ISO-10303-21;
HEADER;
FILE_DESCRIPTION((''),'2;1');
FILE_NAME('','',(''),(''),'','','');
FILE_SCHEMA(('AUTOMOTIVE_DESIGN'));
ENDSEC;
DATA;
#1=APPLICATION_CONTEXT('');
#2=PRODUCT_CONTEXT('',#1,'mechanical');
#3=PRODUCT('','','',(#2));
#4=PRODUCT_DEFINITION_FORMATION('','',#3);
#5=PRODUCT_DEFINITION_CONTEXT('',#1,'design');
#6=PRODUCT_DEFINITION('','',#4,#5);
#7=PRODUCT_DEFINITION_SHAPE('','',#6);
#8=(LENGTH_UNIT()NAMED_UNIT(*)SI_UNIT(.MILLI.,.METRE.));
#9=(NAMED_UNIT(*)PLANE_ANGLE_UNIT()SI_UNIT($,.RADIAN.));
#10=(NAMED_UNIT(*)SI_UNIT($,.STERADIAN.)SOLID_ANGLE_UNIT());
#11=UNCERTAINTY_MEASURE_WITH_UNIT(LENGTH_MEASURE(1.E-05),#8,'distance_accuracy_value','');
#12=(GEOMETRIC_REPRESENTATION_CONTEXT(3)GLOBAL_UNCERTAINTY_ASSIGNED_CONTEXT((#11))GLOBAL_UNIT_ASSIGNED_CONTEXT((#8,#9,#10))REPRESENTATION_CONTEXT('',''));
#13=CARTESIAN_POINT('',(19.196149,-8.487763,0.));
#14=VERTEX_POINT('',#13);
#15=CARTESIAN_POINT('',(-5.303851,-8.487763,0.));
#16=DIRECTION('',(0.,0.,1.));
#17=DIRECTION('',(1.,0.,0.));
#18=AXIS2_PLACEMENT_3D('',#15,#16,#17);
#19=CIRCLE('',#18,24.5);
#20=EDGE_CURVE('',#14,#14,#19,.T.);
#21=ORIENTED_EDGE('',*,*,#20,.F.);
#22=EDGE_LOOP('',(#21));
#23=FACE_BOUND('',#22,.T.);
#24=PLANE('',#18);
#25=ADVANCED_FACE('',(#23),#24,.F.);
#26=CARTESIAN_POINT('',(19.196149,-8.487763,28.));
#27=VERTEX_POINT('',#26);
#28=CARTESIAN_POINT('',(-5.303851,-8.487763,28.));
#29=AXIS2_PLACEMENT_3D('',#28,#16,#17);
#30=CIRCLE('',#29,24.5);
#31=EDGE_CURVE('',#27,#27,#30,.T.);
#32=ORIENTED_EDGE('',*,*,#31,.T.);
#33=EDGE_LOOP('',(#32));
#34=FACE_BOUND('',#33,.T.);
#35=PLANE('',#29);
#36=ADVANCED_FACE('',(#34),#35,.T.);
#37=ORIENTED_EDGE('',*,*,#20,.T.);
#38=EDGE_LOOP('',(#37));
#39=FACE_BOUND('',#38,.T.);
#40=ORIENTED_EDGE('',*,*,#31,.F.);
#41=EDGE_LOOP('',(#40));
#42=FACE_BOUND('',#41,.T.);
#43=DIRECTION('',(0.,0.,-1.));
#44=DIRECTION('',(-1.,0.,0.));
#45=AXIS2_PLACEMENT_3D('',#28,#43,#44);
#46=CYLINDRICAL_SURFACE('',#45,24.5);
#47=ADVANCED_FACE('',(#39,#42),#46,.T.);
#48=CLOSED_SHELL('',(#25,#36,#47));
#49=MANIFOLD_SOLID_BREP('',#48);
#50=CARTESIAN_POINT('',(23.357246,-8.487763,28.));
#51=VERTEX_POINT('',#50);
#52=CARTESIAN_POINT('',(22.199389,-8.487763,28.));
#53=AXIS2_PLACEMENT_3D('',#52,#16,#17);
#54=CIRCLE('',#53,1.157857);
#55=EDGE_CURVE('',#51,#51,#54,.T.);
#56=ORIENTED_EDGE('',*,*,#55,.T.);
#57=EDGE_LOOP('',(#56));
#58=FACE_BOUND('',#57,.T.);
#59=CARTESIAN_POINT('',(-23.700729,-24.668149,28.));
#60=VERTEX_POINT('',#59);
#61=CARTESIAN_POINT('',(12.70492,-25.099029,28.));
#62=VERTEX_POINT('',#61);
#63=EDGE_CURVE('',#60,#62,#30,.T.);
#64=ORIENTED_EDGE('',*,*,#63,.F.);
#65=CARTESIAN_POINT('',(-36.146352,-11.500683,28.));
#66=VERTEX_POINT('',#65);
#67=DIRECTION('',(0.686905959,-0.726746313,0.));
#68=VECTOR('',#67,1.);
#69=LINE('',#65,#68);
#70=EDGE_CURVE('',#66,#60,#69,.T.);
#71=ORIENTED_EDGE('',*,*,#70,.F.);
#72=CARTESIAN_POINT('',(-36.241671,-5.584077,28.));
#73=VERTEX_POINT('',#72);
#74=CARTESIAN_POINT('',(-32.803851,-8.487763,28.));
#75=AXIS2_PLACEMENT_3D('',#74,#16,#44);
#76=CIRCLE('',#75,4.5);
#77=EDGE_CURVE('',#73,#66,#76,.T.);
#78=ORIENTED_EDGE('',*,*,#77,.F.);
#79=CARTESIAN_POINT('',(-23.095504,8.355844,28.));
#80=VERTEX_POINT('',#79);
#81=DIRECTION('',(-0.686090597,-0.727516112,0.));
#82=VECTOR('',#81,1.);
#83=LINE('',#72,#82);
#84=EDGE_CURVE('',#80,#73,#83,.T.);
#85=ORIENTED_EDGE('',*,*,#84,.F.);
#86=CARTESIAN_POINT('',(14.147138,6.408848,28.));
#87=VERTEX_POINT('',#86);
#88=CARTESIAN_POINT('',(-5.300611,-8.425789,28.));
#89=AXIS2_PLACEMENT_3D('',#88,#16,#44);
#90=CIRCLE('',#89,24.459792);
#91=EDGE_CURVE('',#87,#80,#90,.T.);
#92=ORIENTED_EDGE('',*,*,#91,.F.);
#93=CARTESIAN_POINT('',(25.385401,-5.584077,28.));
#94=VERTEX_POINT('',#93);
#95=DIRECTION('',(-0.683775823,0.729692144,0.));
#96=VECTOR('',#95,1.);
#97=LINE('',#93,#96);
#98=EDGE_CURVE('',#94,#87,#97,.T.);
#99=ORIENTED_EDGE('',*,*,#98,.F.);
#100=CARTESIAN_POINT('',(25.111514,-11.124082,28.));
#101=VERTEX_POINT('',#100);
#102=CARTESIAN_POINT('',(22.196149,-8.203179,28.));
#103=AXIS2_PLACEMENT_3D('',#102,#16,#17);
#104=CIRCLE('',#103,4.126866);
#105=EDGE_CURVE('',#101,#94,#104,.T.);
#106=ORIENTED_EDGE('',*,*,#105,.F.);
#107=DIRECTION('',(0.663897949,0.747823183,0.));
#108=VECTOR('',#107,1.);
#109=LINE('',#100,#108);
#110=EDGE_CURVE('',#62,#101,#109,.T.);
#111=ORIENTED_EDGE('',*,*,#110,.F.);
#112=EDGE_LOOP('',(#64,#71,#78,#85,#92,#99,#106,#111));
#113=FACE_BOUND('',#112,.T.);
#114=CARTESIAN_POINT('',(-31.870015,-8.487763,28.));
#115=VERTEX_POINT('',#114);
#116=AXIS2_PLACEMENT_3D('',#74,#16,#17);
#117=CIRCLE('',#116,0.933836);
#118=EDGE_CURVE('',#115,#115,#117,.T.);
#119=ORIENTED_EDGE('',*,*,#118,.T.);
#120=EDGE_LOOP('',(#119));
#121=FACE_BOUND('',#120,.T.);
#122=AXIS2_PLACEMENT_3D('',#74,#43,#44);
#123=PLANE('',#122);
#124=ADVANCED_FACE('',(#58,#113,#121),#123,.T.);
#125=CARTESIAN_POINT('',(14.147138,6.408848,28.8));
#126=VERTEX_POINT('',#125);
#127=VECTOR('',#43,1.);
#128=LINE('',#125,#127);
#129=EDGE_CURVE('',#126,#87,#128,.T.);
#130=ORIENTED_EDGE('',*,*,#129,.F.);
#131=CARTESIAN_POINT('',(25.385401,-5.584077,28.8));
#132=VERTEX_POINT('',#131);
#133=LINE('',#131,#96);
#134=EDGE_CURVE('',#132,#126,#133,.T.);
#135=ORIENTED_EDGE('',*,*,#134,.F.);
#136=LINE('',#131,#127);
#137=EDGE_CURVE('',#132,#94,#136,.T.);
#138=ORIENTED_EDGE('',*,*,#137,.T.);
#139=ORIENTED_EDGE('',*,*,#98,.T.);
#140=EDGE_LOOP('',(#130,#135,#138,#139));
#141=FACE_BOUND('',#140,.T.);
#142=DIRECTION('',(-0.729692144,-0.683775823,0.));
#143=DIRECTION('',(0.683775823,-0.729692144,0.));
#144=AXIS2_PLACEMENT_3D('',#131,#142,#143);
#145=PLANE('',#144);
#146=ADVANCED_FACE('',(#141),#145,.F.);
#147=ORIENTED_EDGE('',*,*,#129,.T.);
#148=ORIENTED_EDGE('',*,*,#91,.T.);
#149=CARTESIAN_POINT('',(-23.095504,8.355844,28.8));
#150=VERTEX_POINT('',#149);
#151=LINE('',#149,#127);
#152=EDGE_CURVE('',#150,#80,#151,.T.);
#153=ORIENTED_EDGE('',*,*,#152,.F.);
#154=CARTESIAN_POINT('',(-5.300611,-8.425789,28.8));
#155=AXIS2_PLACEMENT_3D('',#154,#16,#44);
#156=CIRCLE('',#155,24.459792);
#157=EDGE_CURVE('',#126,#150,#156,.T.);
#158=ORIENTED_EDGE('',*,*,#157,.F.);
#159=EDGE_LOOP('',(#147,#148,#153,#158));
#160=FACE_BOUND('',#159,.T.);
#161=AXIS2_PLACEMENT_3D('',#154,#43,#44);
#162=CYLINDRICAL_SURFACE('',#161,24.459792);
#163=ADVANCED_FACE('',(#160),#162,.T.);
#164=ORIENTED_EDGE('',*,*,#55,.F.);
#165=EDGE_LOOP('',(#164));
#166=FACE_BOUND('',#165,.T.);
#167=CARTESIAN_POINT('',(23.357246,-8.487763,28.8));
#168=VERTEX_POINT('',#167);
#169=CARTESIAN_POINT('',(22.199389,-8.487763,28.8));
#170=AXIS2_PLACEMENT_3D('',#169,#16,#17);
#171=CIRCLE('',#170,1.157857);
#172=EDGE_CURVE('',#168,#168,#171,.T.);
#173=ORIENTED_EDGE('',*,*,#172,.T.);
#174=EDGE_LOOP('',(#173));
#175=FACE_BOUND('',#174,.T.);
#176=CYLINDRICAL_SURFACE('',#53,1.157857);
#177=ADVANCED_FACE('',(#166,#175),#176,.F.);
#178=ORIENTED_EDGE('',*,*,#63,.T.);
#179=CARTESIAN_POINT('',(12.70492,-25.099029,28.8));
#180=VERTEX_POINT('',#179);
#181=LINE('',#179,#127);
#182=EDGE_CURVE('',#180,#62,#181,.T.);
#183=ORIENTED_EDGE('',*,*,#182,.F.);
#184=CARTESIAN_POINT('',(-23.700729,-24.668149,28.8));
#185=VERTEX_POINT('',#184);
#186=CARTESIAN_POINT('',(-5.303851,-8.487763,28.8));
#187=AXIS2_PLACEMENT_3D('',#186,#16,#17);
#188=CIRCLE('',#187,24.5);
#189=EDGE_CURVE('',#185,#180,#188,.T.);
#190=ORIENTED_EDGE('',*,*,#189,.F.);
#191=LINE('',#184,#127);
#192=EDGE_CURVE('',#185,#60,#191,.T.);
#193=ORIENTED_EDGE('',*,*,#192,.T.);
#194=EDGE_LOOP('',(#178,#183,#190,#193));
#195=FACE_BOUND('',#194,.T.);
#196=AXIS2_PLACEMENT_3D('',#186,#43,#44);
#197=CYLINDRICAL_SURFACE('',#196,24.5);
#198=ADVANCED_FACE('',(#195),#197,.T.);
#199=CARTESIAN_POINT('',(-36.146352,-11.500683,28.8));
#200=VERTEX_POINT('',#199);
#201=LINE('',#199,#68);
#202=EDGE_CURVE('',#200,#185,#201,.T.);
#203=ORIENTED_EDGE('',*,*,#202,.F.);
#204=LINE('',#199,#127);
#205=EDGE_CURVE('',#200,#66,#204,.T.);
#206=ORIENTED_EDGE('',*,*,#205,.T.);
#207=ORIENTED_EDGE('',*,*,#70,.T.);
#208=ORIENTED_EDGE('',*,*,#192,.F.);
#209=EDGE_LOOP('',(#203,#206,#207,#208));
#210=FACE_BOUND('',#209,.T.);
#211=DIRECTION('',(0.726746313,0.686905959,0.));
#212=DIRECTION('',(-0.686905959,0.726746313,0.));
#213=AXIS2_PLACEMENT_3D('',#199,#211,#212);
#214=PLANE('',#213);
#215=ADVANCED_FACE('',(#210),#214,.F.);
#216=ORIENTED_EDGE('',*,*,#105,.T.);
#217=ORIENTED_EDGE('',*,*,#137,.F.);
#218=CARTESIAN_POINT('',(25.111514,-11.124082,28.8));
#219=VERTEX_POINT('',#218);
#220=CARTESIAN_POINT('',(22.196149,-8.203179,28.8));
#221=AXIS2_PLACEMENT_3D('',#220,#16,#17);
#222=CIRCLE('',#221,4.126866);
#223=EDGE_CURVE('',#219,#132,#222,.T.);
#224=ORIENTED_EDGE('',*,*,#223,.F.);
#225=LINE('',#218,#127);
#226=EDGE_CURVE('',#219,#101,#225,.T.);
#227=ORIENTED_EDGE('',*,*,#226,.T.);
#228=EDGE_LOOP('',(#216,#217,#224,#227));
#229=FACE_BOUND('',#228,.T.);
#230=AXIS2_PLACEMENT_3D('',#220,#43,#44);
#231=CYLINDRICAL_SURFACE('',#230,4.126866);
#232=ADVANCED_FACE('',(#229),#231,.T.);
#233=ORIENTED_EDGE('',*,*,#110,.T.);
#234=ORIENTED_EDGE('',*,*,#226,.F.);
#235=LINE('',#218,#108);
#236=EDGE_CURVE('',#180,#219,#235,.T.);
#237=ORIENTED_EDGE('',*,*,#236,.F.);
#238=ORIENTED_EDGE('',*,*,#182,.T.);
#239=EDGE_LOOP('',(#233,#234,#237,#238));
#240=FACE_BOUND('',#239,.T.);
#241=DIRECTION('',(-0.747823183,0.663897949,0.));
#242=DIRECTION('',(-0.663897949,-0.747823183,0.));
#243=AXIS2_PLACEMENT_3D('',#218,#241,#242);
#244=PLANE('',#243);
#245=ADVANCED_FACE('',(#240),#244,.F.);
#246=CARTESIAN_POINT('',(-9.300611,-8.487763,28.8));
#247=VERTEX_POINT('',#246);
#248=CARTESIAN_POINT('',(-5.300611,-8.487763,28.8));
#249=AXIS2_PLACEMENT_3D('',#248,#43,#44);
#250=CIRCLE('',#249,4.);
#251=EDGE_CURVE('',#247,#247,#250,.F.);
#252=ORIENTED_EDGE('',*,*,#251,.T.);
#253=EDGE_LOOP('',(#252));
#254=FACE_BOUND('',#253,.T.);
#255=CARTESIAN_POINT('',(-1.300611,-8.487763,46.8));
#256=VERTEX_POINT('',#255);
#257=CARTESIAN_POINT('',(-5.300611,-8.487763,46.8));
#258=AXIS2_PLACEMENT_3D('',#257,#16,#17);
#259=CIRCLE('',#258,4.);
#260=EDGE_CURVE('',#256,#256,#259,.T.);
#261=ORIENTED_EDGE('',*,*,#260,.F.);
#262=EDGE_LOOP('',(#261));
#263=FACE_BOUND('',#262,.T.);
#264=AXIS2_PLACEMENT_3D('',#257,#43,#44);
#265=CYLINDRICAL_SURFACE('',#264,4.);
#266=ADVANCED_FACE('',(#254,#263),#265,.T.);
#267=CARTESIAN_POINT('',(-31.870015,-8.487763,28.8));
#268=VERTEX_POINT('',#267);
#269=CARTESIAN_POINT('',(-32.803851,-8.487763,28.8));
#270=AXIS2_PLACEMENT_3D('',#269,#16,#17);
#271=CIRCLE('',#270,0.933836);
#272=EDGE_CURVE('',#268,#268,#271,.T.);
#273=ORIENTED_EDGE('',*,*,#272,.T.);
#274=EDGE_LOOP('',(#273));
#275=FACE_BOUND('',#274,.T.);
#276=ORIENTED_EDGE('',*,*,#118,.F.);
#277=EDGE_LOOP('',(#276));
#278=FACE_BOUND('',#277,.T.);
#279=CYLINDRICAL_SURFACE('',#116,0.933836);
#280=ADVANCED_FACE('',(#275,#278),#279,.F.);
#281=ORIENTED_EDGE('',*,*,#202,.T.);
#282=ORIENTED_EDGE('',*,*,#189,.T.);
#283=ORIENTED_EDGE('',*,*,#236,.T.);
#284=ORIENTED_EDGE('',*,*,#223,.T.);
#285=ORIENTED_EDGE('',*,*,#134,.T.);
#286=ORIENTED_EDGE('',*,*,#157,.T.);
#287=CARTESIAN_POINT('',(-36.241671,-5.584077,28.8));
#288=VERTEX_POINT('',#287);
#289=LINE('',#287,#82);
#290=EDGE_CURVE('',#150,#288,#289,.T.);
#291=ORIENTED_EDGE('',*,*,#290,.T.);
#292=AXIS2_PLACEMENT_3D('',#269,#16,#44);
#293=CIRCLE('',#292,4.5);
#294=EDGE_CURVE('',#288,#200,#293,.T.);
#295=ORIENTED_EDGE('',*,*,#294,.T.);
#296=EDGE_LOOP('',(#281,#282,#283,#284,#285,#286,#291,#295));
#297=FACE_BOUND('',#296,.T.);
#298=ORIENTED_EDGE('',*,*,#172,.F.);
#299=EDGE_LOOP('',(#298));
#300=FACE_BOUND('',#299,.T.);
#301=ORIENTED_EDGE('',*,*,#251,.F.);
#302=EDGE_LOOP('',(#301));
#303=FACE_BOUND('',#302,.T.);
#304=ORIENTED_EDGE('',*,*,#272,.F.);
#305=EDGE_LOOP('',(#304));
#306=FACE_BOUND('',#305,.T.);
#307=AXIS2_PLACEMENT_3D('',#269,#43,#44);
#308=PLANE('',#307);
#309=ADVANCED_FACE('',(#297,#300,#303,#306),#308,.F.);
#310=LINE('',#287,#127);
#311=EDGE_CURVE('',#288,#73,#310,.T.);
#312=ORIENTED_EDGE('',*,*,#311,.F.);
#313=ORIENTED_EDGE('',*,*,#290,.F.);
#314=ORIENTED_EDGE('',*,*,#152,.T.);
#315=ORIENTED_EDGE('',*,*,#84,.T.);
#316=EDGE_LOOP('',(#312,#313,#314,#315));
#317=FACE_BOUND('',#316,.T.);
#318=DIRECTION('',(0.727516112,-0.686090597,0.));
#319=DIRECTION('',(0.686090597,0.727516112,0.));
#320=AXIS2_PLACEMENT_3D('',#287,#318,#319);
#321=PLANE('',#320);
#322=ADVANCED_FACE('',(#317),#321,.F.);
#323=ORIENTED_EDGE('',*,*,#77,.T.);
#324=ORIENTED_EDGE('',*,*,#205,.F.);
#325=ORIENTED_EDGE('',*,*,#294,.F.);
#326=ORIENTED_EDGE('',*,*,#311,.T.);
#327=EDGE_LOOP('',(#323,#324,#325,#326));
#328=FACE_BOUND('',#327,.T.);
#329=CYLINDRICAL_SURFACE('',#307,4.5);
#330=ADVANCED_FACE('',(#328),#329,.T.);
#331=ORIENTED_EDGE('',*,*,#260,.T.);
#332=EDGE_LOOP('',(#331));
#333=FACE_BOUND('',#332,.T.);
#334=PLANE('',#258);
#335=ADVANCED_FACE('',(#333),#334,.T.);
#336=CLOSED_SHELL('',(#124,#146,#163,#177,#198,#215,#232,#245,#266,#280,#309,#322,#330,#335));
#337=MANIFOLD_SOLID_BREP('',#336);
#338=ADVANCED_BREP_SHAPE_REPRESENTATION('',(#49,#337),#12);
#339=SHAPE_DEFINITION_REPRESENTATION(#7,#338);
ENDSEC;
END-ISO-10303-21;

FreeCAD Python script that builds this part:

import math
import FreeCAD as App
import Part
import Sketcher
from FreeCAD import Vector

doc = App.newDocument("Part")
body = doc.addObject("PartDesign::Body", "Body")

# Sketch on XY plane
sketch1 = body.newObject("Sketcher::SketchObject", "Sketch")
sketch1.AttachmentSupport = (doc.getObject("XY_Plane"), [""])
sketch1.MapMode = "FlatFace"
sketch1.addGeometry(Part.Circle(Vector(-5, -8, 0), Vector(0, 0, 1), 24), False)
sketch1.addConstraint([
    Sketcher.Constraint("Diameter", 0, 49.0),
    Sketcher.Constraint("DistanceX", 0, 3, -1, 1, 5.303851),
    Sketcher.Constraint("DistanceY", 0, 3, -1, 1, 8.487763),
])
pad1 = body.newObject("PartDesign::Pad", "Pad")
pad1.Profile = sketch1
pad1.Length = 28
body2 = doc.addObject("PartDesign::Body", "Body001")

# Sketch on XY plane
sketch2 = body2.newObject("Sketcher::SketchObject", "Sketch001")
sketch2.AttachmentSupport = (doc.getObject("XY_Plane001"), [""])
sketch2.MapMode = "FlatFace"
sketch2.AttachmentOffset = App.Placement(Vector(0, 0, 28), App.Rotation())
sketch2.addGeometry([
    Part.LineSegment(Vector(-23.1, 8.4, 0), Vector(-36.2, -5.6, 0)),  # 0
    Part.ArcOfCircle(Part.Circle(Vector(-32.8, -8.5, 0), Vector(0, 0, 1), 4.5), math.radians(140), math.radians(222)),  # 1
    Part.LineSegment(Vector(-36.1, -11.5, 0), Vector(-23.7, -24.7, 0)),  # 2
    Part.ArcOfCircle(Part.Circle(Vector(-5.3, -8.5, 0), Vector(0, 0, 1), 24.5), math.radians(-139), math.radians(-43)),  # 3
    Part.LineSegment(Vector(12.7, -25.1, 0), Vector(25.1, -11.1, 0)),  # 4
    Part.ArcOfCircle(Part.Circle(Vector(22.2, -8.2, 0), Vector(0, 0, 1), 4.1), math.radians(-45), math.radians(39)),  # 5
    Part.LineSegment(Vector(25.4, -5.6, 0), Vector(14.1, 6.4, 0)),  # 6
    Part.ArcOfCircle(Part.Circle(Vector(-5.3, -8.4, 0), Vector(0, 0, 1), 24.5), math.radians(37), math.radians(137)),  # 7
], False)
sketch2.addConstraint([
    Sketcher.Constraint("Coincident", 0, 2, 1, 1),
    Sketcher.Constraint("Coincident", 1, 2, 2, 1),
    Sketcher.Constraint("Coincident", 2, 2, 3, 1),
    Sketcher.Constraint("Coincident", 3, 2, 4, 1),
    Sketcher.Constraint("Coincident", 4, 2, 5, 1),
    Sketcher.Constraint("Coincident", 5, 2, 6, 1),
    Sketcher.Constraint("Coincident", 6, 2, 7, 1),
    Sketcher.Constraint("Tangent", 7, 2, 0, 1),
    Sketcher.Constraint("Horizontal", 1, 3, 3, 3),
    Sketcher.Constraint("Horizontal", 0, 2, 5, 2),
    Sketcher.Constraint("Radius", 1, 4.5),
    Sketcher.Constraint("Radius", 3, 24.5),
    Sketcher.Constraint("DistanceX", 1, 3, 5, 3, 55.0),
    Sketcher.Constraint("DistanceX", 1, 3, 3, 3, 27.5),
    Sketcher.Constraint("Radius", 7, 24.459792),
    Sketcher.Constraint("Radius", 5, 4.126866),
    Sketcher.Constraint("Distance", 4, 18.687501),
    Sketcher.Constraint("DistanceX", -1, 1, 5, 2, 25.385401),
    Sketcher.Constraint("DistanceX", 1, 2, 1, 3, 3.342501),
    Sketcher.Constraint("Distance", 0, 19.160979),
    Sketcher.Constraint("Distance", 2, 18.11838),
    Sketcher.Constraint("DistanceX", 1, 3, -1, 1, 32.803851),
    Sketcher.Constraint("DistanceY", 5, 3, -1, 1, 8.203179),
    Sketcher.Constraint("DistanceX", 7, 3, -1, 1, 5.300611),
    Sketcher.Constraint("DistanceY", 7, 3, -1, 1, 8.425789),
    Sketcher.Constraint("DistanceX", -1, 1, 3, 2, 12.70492),
    Sketcher.Constraint("DistanceY", -1, 1, 6, 2, 6.408848),
])
pad2 = body2.newObject("PartDesign::Pad", "Pad001")
pad2.Profile = sketch2
pad2.Length = 0.8

# Sketch on XY plane
sketch3 = body2.newObject("Sketcher::SketchObject", "Sketch002")
sketch3.AttachmentSupport = (doc.getObject("XY_Plane001"), [""])
sketch3.MapMode = "FlatFace"
sketch3.AttachmentOffset = App.Placement(Vector(0, 0, 28.8), App.Rotation())
sketch3.addGeometry([
    Part.Circle(Vector(-32.8, -8.5, 0), Vector(0, 0, 1), 0.9),
    Part.Circle(Vector(22.2, -8.5, 0), Vector(0, 0, 1), 1.2),
], False)
sketch3.addConstraint([
    Sketcher.Constraint("Horizontal", 0, 3, 1, 3),
    Sketcher.Constraint("Diameter", 0, 1.867673),
    Sketcher.Constraint("Diameter", 1, 2.315714),
    Sketcher.Constraint("DistanceX", 0, 3, -1, 1, 32.803851),
    Sketcher.Constraint("DistanceX", -1, 1, 1, 3, 22.199389),
    Sketcher.Constraint("DistanceY", 0, 3, -1, 1, 8.487763),
])
pocket1 = body2.newObject("PartDesign::Pocket", "Pocket")
pocket1.Profile = sketch3
pocket1.Length = 0.8

# Sketch on XY plane
sketch4 = body2.newObject("Sketcher::SketchObject", "Sketch003")
sketch4.AttachmentSupport = (doc.getObject("XY_Plane001"), [""])
sketch4.MapMode = "FlatFace"
sketch4.AttachmentOffset = App.Placement(Vector(0, 0, 28.8), App.Rotation())
sketch4.addGeometry(Part.Circle(Vector(-5.3, -8.5, 0), Vector(0, 0, 1), 4), False)
sketch4.addConstraint([
    Sketcher.Constraint("Diameter", 0, 8.0),
    Sketcher.Constraint("DistanceX", 0, 3, -1, 1, 5.300611),
    Sketcher.Constraint("DistanceY", 0, 3, -1, 1, 8.487763),
])
pad3 = body2.newObject("PartDesign::Pad", "Pad002")
pad3.Profile = sketch4
pad3.Length = 18

doc.recompute()
